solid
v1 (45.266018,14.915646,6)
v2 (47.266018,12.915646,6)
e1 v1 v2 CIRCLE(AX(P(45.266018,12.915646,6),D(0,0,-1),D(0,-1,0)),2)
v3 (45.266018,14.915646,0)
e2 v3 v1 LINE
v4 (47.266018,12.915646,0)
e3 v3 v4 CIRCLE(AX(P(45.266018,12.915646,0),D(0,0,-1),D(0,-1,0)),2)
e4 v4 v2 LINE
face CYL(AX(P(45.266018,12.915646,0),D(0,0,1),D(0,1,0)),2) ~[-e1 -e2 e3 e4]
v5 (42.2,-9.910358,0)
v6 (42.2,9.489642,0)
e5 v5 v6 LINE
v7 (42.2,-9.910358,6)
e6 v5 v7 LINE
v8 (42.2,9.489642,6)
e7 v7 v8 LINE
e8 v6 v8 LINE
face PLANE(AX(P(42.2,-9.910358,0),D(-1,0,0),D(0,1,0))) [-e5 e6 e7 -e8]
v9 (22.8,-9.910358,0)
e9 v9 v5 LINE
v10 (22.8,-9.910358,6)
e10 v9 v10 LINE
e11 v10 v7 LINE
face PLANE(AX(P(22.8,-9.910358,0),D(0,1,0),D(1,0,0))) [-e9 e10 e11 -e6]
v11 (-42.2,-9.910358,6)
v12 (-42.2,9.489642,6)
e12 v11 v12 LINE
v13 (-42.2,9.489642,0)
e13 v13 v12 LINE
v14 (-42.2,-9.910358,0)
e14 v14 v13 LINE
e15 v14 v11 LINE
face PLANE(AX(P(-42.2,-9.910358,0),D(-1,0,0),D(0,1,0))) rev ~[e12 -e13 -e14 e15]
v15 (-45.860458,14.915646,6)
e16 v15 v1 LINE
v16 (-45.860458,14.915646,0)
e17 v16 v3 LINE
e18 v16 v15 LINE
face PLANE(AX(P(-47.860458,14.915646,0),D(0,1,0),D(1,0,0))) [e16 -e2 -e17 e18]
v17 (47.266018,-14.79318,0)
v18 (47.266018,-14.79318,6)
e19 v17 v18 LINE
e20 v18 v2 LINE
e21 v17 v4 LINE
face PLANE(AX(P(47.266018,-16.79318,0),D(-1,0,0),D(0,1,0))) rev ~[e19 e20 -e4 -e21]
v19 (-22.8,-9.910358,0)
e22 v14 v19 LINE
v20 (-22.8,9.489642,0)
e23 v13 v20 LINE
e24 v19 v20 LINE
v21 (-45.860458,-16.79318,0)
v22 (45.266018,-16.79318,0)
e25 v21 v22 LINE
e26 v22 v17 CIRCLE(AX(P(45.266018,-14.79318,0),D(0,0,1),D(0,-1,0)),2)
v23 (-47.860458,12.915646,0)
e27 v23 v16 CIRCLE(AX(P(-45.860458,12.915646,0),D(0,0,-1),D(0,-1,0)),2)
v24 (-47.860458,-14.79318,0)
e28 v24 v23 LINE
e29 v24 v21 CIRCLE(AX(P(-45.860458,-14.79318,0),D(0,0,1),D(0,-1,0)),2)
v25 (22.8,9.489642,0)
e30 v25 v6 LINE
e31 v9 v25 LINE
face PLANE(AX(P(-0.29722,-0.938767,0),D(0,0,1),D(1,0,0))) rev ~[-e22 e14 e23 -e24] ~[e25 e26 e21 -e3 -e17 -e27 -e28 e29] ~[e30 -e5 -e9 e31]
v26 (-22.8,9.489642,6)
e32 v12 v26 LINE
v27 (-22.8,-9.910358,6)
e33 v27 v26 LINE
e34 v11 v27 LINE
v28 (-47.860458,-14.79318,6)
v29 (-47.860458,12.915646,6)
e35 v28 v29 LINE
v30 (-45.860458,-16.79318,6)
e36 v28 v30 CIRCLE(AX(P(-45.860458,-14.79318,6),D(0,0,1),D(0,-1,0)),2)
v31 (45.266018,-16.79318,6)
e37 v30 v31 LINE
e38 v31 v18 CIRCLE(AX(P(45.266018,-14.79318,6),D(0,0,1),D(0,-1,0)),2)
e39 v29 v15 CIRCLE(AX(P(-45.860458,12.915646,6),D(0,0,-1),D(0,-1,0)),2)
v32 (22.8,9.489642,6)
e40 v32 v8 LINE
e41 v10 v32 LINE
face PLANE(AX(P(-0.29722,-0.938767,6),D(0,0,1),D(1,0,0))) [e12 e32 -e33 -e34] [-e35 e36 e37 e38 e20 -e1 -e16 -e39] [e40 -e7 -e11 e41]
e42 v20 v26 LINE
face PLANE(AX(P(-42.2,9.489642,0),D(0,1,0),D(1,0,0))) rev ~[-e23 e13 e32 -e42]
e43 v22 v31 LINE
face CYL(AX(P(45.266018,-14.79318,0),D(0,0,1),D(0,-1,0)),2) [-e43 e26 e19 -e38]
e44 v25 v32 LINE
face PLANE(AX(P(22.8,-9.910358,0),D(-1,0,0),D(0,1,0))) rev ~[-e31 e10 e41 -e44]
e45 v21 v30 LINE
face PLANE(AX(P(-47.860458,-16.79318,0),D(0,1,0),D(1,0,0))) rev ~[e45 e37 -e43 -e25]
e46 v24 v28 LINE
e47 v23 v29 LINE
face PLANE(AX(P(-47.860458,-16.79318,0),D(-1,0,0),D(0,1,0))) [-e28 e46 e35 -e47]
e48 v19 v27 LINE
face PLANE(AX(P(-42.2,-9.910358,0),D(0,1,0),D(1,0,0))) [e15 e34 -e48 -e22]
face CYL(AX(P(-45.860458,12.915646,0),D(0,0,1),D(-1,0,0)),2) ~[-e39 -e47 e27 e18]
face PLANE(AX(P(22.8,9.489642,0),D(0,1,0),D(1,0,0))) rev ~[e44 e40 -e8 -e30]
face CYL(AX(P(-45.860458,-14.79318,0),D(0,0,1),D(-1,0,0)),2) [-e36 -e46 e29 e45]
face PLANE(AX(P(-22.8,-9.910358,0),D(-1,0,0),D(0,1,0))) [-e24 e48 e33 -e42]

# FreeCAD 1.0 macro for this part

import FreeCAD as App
import Part
import Sketcher

V = App.Vector
Q = App.Units.Quantity


def edges_at(feature, points):
    """Names of the edges that pass closest to the given points."""
    edges = feature.Shape.Edges
    near = lambda p: min(range(len(edges)), key=lambda i: edges[i].distToShape(Part.Vertex(*p))[0])
    return sorted({f"Edge{near(p) + 1}" for p in points})

doc = App.newDocument("Part")
params = doc.addObject("Spreadsheet::Sheet", "Params")
for row, (alias, value) in enumerate([
    ("sketch1_width", "19.4 mm"),
    ("pad1_length", "6 mm"),
    ("fillet_radius", "2 mm"),
], start=1):
    params.set(f"A{row}", alias)
    params.set(f"B{row}", "=" + value)
    params.setAlias(f"B{row}", alias)

body = doc.addObject("PartDesign::Body", "Body")

sketch1 = body.newObject("Sketcher::SketchObject", "Sketch")
sketch1.AttachmentSupport = (doc.getObject("XY_Plane"), [""])
sketch1.MapMode = "FlatFace"
sketch1.addGeometry([
    Part.LineSegment(V(-47.860458, 14.915646, 0), V(-47.860458, -16.79318, 0)),
    Part.LineSegment(V(-47.860458, -16.79318, 0), V(47.266018, -16.79318, 0)),
    Part.LineSegment(V(47.266018, -16.79318, 0), V(47.266018, 14.915646, 0)),
    Part.LineSegment(V(47.266018, 14.915646, 0), V(-47.860458, 14.915646, 0)),
    Part.LineSegment(V(-22.8, -9.910358, 0), V(-42.2, -9.910358, 0)),
    Part.LineSegment(V(-42.2, -9.910358, 0), V(-42.2, 9.489642, 0)),
    Part.LineSegment(V(-42.2, 9.489642, 0), V(-22.8, 9.489642, 0)),
    Part.LineSegment(V(-22.8, 9.489642, 0), V(-22.8, -9.910358, 0)),
    Part.LineSegment(V(42.2, -9.910358, 0), V(22.8, -9.910358, 0)),
    Part.LineSegment(V(22.8, -9.910358, 0), V(22.8, 9.489642, 0)),
    Part.LineSegment(V(22.8, 9.489642, 0), V(42.2, 9.489642, 0)),
    Part.LineSegment(V(42.2, 9.489642, 0), V(42.2, -9.910358, 0)),
], False)
sketch1.addConstraint([
    Sketcher.Constraint("Coincident", 0, 2, 1, 1),
    Sketcher.Constraint("Coincident", 1, 2, 2, 1),
    Sketcher.Constraint("Coincident", 2, 2, 3, 1),
    Sketcher.Constraint("Coincident", 3, 2, 0, 1),
    Sketcher.Constraint("Coincident", 4, 2, 5, 1),
    Sketcher.Constraint("Coincident", 5, 2, 6, 1),
    Sketcher.Constraint("Coincident", 6, 2, 7, 1),
    Sketcher.Constraint("Coincident", 7, 2, 4, 1),
    Sketcher.Constraint("Coincident", 8, 2, 9, 1),
    Sketcher.Constraint("Coincident", 9, 2, 10, 1),
    Sketcher.Constraint("Coincident", 10, 2, 11, 1),
    Sketcher.Constraint("Coincident", 11, 2, 8, 1),
    Sketcher.Constraint("Vertical", 0),
    Sketcher.Constraint("Horizontal", 1),
    Sketcher.Constraint("Vertical", 2),
    Sketcher.Constraint("Horizontal", 3),
    Sketcher.Constraint("Horizontal", 4),
    Sketcher.Constraint("Vertical", 5),
    Sketcher.Constraint("Horizontal", 6),
    Sketcher.Constraint("Vertical", 7),
    Sketcher.Constraint("Horizontal", 8),
    Sketcher.Constraint("Vertical", 9),
    Sketcher.Constraint("Horizontal", 10),
    Sketcher.Constraint("Vertical", 11),
    Sketcher.Constraint("Symmetric", 7, 2, 8, 2, -2),
    Sketcher.Constraint("Symmetric", 5, 2, 10, 2, -2),
    Sketcher.Constraint("Equal", 10, 5),
    Sketcher.Constraint("DistanceX", 4, 2, 4, 1, Q("19.4 mm")),
    Sketcher.Constraint("DistanceX", 4, 2, 8, 2, Q("65 mm")),
    Sketcher.Constraint("DistanceX", 1, 1, 1, 2, Q("95.126476 mm")),
    Sketcher.Constraint("DistanceY", 0, 2, 0, 1, Q("31.708825 mm")),
    Sketcher.Constraint("DistanceY", 0, 2, -1, 1, Q("16.79318 mm")),
    Sketcher.Constraint("DistanceX", -1, 1, 1, 2, Q("47.266018 mm")),
    Sketcher.Constraint("DistanceY", 0, 2, 4, 2, Q("6.882822 mm")),
])
sketch1.setExpression("Constraints[27]", "Params.sketch1_width")
pad1 = body.newObject("PartDesign::Pad", "Pad")
pad1.Profile = sketch1
pad1.setExpression("Length", "Params.pad1_length")
doc.recompute()

fillet = body.newObject("PartDesign::Fillet", "Fillet")
fillet.Base = (pad1, edges_at(pad1, [
    (47.266, 14.916, 3),
    (47.266, -16.793, 3),
    (-47.86, 14.916, 3),
    (-47.86, -16.793, 3),
]))
fillet.setExpression("Radius", "Params.fillet_radius")

doc.recompute()
